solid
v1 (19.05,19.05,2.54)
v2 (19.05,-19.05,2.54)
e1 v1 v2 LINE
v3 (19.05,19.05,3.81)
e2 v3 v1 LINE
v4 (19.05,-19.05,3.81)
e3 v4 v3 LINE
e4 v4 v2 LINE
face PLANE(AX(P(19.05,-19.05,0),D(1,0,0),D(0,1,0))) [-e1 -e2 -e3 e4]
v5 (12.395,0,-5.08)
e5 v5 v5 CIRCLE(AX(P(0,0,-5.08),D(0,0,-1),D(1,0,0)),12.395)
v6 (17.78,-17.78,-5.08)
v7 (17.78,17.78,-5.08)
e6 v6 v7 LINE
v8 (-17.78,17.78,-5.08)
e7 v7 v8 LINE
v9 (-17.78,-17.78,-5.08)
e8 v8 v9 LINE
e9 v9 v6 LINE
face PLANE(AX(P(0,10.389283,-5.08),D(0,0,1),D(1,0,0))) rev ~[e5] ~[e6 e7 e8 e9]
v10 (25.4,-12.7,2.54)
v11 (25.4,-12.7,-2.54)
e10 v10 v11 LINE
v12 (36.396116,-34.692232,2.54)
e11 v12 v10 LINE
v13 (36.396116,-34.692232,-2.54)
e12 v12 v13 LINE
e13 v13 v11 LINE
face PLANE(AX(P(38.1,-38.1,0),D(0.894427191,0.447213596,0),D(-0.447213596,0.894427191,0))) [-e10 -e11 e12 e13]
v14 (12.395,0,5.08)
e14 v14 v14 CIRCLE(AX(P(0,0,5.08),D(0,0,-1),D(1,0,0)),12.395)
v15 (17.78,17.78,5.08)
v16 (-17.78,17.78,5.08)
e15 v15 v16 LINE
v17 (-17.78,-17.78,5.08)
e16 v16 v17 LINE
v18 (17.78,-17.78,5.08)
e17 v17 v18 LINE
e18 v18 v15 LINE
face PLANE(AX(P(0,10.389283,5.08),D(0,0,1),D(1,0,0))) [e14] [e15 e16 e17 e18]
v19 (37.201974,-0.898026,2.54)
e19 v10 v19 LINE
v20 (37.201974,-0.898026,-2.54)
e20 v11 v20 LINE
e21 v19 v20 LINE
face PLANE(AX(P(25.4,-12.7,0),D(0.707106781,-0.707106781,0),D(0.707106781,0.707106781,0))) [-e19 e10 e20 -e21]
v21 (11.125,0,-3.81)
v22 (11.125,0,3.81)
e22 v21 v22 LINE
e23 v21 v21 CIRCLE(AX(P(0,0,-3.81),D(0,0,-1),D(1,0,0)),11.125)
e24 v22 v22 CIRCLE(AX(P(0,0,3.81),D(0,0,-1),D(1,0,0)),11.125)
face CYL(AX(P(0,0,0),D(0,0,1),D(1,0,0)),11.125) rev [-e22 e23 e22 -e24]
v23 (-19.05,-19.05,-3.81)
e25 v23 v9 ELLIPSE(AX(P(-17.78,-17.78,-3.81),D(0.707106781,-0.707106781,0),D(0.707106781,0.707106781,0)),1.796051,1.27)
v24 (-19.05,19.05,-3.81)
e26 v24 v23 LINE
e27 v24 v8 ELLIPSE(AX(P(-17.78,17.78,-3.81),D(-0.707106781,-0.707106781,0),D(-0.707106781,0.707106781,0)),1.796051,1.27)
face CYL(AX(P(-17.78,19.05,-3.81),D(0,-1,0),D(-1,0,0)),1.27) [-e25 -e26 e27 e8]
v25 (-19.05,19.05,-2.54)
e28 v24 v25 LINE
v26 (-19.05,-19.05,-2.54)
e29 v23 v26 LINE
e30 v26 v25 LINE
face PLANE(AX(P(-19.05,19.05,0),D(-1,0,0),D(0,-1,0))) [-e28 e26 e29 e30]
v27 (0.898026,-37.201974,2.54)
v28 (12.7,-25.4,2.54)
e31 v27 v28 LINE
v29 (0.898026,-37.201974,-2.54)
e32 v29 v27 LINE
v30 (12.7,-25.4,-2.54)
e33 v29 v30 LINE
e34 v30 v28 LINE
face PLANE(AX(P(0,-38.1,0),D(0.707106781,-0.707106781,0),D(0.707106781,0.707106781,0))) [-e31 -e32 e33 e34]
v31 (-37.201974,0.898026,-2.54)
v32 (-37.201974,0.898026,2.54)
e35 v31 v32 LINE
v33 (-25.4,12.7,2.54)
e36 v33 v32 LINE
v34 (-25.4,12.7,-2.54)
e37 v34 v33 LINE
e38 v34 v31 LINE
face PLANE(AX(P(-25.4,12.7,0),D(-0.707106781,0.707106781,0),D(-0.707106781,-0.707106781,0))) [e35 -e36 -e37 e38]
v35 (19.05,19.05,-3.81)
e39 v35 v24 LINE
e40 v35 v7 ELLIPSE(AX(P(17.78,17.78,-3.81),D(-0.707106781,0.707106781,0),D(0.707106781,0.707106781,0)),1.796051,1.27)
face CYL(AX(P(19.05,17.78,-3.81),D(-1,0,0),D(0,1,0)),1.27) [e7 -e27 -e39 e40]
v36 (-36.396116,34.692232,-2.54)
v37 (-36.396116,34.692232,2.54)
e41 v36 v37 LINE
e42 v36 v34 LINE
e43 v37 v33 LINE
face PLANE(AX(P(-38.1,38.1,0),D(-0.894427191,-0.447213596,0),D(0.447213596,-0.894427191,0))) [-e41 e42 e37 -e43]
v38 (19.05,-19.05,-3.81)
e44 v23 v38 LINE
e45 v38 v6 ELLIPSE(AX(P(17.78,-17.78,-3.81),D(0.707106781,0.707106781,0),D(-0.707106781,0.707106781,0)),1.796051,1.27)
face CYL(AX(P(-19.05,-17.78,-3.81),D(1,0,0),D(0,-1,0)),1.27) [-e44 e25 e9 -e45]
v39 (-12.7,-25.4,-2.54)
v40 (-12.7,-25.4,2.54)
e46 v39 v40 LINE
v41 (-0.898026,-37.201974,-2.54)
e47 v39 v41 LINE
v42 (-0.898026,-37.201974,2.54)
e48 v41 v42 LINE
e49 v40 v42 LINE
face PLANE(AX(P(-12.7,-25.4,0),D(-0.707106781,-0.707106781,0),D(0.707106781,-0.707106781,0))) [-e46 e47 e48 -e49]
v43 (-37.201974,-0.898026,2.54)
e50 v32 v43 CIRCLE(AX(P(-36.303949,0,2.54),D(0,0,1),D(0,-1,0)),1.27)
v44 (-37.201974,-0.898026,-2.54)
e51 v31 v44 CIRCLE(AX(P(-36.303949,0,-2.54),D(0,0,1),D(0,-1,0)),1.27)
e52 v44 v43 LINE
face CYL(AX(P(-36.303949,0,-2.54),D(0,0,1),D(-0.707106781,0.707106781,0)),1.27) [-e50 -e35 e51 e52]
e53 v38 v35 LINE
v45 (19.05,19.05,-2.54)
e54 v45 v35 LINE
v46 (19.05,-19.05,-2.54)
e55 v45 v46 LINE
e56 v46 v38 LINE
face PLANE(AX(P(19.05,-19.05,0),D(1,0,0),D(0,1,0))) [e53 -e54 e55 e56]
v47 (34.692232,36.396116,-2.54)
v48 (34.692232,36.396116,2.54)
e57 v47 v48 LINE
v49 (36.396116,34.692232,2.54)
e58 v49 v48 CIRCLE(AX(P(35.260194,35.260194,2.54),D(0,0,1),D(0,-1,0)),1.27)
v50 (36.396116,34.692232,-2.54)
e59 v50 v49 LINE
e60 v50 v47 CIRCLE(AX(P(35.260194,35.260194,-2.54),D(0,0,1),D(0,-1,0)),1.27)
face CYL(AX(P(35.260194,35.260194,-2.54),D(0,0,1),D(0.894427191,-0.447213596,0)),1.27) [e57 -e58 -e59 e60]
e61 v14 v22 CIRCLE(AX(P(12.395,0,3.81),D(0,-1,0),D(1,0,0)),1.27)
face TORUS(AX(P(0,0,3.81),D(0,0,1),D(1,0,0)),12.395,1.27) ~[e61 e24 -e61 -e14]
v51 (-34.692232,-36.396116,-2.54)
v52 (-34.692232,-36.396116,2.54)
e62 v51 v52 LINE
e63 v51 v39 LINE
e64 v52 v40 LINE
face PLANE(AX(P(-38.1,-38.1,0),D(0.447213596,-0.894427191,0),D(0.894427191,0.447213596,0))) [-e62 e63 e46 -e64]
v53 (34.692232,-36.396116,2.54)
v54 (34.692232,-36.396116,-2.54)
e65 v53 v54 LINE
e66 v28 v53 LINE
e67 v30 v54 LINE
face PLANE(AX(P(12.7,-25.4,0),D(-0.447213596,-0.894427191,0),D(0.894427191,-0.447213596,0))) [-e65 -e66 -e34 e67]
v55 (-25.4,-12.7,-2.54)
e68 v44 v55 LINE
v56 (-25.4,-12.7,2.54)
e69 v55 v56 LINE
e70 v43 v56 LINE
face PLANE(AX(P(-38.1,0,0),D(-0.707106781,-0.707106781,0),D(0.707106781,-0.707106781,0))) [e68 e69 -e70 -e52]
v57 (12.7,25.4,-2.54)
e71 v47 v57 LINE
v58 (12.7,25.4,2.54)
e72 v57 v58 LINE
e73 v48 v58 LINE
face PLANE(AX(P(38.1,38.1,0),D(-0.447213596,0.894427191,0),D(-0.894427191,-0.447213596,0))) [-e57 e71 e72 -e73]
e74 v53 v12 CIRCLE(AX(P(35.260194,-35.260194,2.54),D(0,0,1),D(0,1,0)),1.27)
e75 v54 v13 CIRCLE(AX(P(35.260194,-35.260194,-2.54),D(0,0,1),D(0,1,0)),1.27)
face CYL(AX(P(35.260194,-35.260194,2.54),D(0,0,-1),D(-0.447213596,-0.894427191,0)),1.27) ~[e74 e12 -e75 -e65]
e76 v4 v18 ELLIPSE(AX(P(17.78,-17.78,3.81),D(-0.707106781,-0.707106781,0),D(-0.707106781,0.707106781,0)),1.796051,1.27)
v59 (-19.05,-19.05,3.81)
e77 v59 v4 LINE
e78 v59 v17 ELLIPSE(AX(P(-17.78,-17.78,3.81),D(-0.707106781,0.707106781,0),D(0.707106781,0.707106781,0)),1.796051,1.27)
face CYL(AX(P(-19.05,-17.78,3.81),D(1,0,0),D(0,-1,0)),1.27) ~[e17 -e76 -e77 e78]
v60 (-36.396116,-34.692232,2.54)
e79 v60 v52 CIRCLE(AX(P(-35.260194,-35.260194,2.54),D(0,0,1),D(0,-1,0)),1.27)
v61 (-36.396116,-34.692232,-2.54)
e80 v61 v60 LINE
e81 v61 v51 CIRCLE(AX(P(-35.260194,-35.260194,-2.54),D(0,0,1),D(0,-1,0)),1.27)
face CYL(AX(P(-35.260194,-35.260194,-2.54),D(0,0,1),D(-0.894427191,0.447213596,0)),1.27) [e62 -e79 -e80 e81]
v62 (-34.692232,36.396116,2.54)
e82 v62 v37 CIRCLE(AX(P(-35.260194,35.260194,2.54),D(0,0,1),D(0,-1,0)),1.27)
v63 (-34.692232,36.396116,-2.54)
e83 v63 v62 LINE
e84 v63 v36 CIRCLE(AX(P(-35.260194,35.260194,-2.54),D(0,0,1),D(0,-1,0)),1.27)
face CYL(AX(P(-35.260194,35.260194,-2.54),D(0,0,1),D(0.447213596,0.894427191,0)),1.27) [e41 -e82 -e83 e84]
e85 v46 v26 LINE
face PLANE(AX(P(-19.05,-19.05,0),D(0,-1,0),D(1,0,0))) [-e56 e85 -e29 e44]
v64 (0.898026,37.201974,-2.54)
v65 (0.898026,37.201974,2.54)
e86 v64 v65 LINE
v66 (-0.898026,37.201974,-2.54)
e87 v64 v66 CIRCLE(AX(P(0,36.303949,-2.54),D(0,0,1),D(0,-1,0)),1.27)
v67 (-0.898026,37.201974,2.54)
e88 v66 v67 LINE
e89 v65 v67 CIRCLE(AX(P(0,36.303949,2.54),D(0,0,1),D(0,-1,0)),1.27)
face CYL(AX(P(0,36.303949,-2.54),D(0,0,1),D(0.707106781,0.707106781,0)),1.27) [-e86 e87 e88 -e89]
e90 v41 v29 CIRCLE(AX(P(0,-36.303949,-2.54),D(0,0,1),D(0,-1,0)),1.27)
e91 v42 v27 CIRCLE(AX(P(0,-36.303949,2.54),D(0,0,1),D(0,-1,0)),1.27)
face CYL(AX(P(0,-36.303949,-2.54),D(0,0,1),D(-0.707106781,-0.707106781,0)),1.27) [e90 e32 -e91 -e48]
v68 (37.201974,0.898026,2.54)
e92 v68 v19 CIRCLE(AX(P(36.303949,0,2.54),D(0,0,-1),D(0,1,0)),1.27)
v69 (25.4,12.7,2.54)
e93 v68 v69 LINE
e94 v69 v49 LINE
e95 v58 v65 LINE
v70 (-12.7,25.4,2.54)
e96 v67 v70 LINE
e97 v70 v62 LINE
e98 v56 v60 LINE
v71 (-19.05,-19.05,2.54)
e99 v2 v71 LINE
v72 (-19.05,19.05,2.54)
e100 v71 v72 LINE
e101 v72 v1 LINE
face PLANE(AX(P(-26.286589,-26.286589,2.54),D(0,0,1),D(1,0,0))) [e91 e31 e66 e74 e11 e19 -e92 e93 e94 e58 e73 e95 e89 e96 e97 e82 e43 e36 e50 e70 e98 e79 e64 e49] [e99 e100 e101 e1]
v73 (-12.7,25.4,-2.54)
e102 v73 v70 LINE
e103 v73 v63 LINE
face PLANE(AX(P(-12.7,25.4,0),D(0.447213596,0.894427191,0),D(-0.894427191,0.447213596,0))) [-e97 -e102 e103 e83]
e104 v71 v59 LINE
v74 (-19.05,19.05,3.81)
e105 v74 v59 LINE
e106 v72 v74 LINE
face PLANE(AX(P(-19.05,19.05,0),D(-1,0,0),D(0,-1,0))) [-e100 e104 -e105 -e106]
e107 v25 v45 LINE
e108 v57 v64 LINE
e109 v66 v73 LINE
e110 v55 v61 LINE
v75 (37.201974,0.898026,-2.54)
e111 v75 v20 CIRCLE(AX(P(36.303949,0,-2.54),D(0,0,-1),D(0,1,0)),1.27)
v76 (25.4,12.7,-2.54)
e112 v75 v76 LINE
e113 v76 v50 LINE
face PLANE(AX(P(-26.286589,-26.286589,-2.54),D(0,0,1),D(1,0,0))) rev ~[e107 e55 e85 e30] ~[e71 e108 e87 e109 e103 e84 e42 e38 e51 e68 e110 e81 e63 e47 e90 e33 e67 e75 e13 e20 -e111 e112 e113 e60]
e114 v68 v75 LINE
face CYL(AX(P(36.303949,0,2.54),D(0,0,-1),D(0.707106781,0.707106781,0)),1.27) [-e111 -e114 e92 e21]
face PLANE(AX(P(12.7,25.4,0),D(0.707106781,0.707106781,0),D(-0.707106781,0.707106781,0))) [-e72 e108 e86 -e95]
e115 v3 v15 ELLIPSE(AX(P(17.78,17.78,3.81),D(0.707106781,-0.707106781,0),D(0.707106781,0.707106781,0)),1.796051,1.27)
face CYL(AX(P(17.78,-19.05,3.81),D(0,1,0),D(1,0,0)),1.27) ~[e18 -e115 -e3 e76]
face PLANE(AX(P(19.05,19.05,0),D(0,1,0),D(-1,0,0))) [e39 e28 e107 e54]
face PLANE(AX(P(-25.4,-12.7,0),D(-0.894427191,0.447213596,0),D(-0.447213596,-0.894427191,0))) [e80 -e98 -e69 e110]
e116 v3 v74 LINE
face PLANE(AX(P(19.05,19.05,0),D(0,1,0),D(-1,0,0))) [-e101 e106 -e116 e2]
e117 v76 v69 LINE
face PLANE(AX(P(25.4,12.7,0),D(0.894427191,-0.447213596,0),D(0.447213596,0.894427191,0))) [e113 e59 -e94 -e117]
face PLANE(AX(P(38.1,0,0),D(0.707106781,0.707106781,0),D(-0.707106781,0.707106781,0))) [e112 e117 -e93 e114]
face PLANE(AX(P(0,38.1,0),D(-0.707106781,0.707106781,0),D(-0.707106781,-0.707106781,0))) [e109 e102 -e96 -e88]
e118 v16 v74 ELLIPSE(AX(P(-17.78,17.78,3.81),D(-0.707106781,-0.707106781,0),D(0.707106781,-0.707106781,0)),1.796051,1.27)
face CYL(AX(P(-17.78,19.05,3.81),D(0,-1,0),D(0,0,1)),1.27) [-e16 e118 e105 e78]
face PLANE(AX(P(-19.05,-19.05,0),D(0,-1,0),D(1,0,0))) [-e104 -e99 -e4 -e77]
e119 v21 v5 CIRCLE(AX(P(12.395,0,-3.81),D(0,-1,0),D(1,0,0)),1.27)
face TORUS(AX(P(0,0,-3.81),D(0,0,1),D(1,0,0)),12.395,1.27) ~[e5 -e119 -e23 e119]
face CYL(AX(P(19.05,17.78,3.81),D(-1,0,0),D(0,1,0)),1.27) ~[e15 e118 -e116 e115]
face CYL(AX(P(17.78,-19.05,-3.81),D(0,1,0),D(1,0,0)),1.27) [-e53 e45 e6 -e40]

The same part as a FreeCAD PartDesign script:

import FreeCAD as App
import Part
import Sketcher

V = App.Vector
Q = App.Units.Quantity


def edges_at(feature, points):
    """Names of the edges that pass closest to the given points."""
    edges = feature.Shape.Edges
    near = lambda p: min(range(len(edges)), key=lambda i: edges[i].distToShape(Part.Vertex(*p))[0])
    return sorted({f"Edge{near(p) + 1}" for p in points})

doc = App.newDocument("Part")
params = doc.addObject("Spreadsheet::Sheet", "Params")
for row, (alias, value) in enumerate([
    ("sketch1_width", "1.5 in"),
    ("pad1_length", "0.4 in"),
    ("fillet_radius", "0.05 in"),
    ("sketch2_width", "1.5 in"),
    ("pad2_length", "0.2 in"),
    ("fillet2_radius", "0.05 in"),
], start=1):
    params.set(f"A{row}", alias)
    params.set(f"B{row}", "=" + value)
    params.setAlias(f"B{row}", alias)

body = doc.addObject("PartDesign::Body", "Body")

# Sketch on XY plane
sketch1 = body.newObject("Sketcher::SketchObject", "Sketch")
sketch1.AttachmentSupport = (doc.getObject("XY_Plane"), [""])
sketch1.MapMode = "FlatFace"
sketch1.addGeometry(Part.LineSegment(V(19, 19, 0), V(-19, 19, 0)), False)
sketch1.addGeometry(Part.LineSegment(V(-19, 19, 0), V(-19, -19, 0)), False)
sketch1.addGeometry(Part.LineSegment(V(-19, -19, 0), V(19, -19, 0)), False)
sketch1.addGeometry(Part.LineSegment(V(19, -19, 0), V(19, 19, 0)), False)
sketch1.addGeometry(Part.Circle(V(0, 0, 0), V(0, 0, 1), 11), False)
sketch1.addConstraint(Sketcher.Constraint("Coincident", 0, 2, 1, 1))
sketch1.addConstraint(Sketcher.Constraint("Coincident", 1, 2, 2, 1))
sketch1.addConstraint(Sketcher.Constraint("Coincident", 2, 2, 3, 1))
sketch1.addConstraint(Sketcher.Constraint("Coincident", 3, 2, 0, 1))
sketch1.addConstraint(Sketcher.Constraint("Horizontal", 0))
sketch1.addConstraint(Sketcher.Constraint("Vertical", 1))
sketch1.addConstraint(Sketcher.Constraint("Horizontal", 2))
sketch1.addConstraint(Sketcher.Constraint("Vertical", 3))
sketch1.addConstraint(Sketcher.Constraint("Coincident", 4, 3, -1, 1))
sketch1.addConstraint(Sketcher.Constraint("Symmetric", 0, 2, 2, 2, -1, 1))
sketch1.addConstraint(Sketcher.Constraint("Equal", 2, 1))
sketch1.addConstraint(Sketcher.Constraint("DistanceX", 0, 2, 0, 1, Q("1.5 in")))
sketch1.addConstraint(Sketcher.Constraint("Diameter", 4, Q("22.25 mm")))
sketch1.setExpression("Constraints[11]", "Params.sketch1_width")
pad1 = body.newObject("PartDesign::Pad", "Pad")
pad1.Profile = sketch1
pad1.setExpression("Length", "Params.pad1_length")
pad1.Midplane = True
doc.recompute()

fillet = body.newObject("PartDesign::Fillet", "Fillet")
fillet.Base = (pad1, edges_at(pad1, [
    (19.05, 0, 5.08),
    (0, -19.05, 5.08),
    (-19.05, 0, 5.08),
    (0, 19.05, 5.08),
    (-11.125, 0, 5.08),
    (-11.125, 0, -5.08),
    (19.05, 0, -5.08),
    (0, -19.05, -5.08),
    (0, 19.05, -5.08),
    (-19.05, 0, -5.08),
]))
fillet.setExpression("Radius", "Params.fillet_radius")

# Sketch on XY plane
sketch2 = body.newObject("Sketcher::SketchObject", "Sketch001")
sketch2.AttachmentSupport = (doc.getObject("XY_Plane"), [""])
sketch2.MapMode = "FlatFace"
sketch2.addGeometry(Part.LineSegment(V(38, 0, 0), V(25, 13, 0)), False)
sketch2.addGeometry(Part.LineSegment(V(25, 13, 0), V(38, 38, 0)), False)
sketch2.addGeometry(Part.LineSegment(V(38, 38, 0), V(13, 25, 0)), False)
sketch2.addGeometry(Part.LineSegment(V(13, 25, 0), V(0, 38, 0)), False)
sketch2.addGeometry(Part.LineSegment(V(0, 38, 0), V(-13, 25, 0)), False)
sketch2.addGeometry(Part.LineSegment(V(-13, 25, 0), V(-38, 38, 0)), False)
sketch2.addGeometry(Part.LineSegment(V(-38, 38, 0), V(-25, 13, 0)), False)
sketch2.addGeometry(Part.LineSegment(V(-25, 13, 0), V(-38, 0, 0)), False)
sketch2.addGeometry(Part.LineSegment(V(-38, 0, 0), V(-25, -13, 0)), False)
sketch2.addGeometry(Part.LineSegment(V(-25, -13, 0), V(-38, -38, 0)), False)
sketch2.addGeometry(Part.LineSegment(V(-38, -38, 0), V(-13, -25, 0)), False)
sketch2.addGeometry(Part.LineSegment(V(-13, -25, 0), V(0, -38, 0)), False)
sketch2.addGeometry(Part.LineSegment(V(0, -38, 0), V(13, -25, 0)), False)
sketch2.addGeometry(Part.LineSegment(V(13, -25, 0), V(38, -38, 0)), False)
sketch2.addGeometry(Part.LineSegment(V(38, -38, 0), V(25, -13, 0)), False)
sketch2.addGeometry(Part.LineSegment(V(25, -13, 0), V(38, 0, 0)), False)
sketch2.addGeometry(Part.LineSegment(V(-19, 19, 0), V(19, 19, 0)), False)
sketch2.addGeometry(Part.LineSegment(V(19, 19, 0), V(19, -19, 0)), False)
sketch2.addGeometry(Part.LineSegment(V(19, -19, 0), V(-19, -19, 0)), False)
sketch2.addGeometry(Part.LineSegment(V(-19, -19, 0), V(-19, 19, 0)), False)
sketch2.addConstraint(Sketcher.Constraint("Coincident", 0, 2, 1, 1))
sketch2.addConstraint(Sketcher.Constraint("Coincident", 1, 2, 2, 1))
sketch2.addConstraint(Sketcher.Constraint("Coincident", 2, 2, 3, 1))
sketch2.addConstraint(Sketcher.Constraint("Coincident", 3, 2, 4, 1))
sketch2.addConstraint(Sketcher.Constraint("Coincident", 4, 2, 5, 1))
sketch2.addConstraint(Sketcher.Constraint("Coincident", 5, 2, 6, 1))
sketch2.addConstraint(Sketcher.Constraint("Coincident", 6, 2, 7, 1))
sketch2.addConstraint(Sketcher.Constraint("Coincident", 7, 2, 8, 1))
sketch2.addConstraint(Sketcher.Constraint("Coincident", 8, 2, 9, 1))
sketch2.addConstraint(Sketcher.Constraint("Coincident", 9, 2, 10, 1))
sketch2.addConstraint(Sketcher.Constraint("Coincident", 10, 2, 11, 1))
sketch2.addConstraint(Sketcher.Constraint("Coincident", 11, 2, 12, 1))
sketch2.addConstraint(Sketcher.Constraint("Coincident", 12, 2, 13, 1))
sketch2.addConstraint(Sketcher.Constraint("Coincident", 13, 2, 14, 1))
sketch2.addConstraint(Sketcher.Constraint("Coincident", 14, 2, 15, 1))
sketch2.addConstraint(Sketcher.Constraint("Coincident", 15, 2, 0, 1))
sketch2.addConstraint(Sketcher.Constraint("Coincident", 16, 2, 17, 1))
sketch2.addConstraint(Sketcher.Constraint("Coincident", 17, 2, 18, 1))
sketch2.addConstraint(Sketcher.Constraint("Coincident", 18, 2, 19, 1))
sketch2.addConstraint(Sketcher.Constraint("Coincident", 19, 2, 16, 1))
sketch2.addConstraint(Sketcher.Constraint("Horizontal", 16))
sketch2.addConstraint(Sketcher.Constraint("Vertical", 17))
sketch2.addConstraint(Sketcher.Constraint("Horizontal", 18))
sketch2.addConstraint(Sketcher.Constraint("Vertical", 19))
sketch2.addConstraint(Sketcher.Constraint("Symmetric", 0, 2, 8, 2, -1, 1))
sketch2.addConstraint(Sketcher.Constraint("Symmetric", 1, 2, 9, 2, -1, 1))
sketch2.addConstraint(Sketcher.Constraint("Symmetric", 2, 2, 10, 2, -1, 1))
sketch2.addConstraint(Sketcher.Constraint("Symmetric", 3, 2, 11, 2, -1, 1))
sketch2.addConstraint(Sketcher.Constraint("Symmetric", 4, 2, 12, 2, -1, 1))
sketch2.addConstraint(Sketcher.Constraint("Symmetric", 5, 2, 13, 2, -1, 1))
sketch2.addConstraint(Sketcher.Constraint("Symmetric", 6, 2, 14, 2, -1, 1))
sketch2.addConstraint(Sketcher.Constraint("Symmetric", 7, 2, 15, 2, -1, 1))
sketch2.addConstraint(Sketcher.Constraint("Symmetric", 16, 2, 18, 2, -1, 1))
sketch2.addConstraint(Sketcher.Constraint("Symmetric", 2, 2, 4, 2, -2))
sketch2.addConstraint(Sketcher.Constraint("Symmetric", 1, 2, 5, 2, -2))
sketch2.addConstraint(Sketcher.Constraint("Symmetric", 0, 2, 6, 2, -2))
sketch2.addConstraint(Sketcher.Constraint("PointOnObject", 3, 2, -2))
sketch2.addConstraint(Sketcher.Constraint("PointOnObject", 7, 2, -1))
sketch2.addConstraint(Sketcher.Constraint("Parallel", 0, 3))
sketch2.addConstraint(Sketcher.Constraint("Perpendicular", 3, 4))
sketch2.addConstraint(Sketcher.Constraint("Perpendicular", 1, 5))
sketch2.addConstraint(Sketcher.Constraint("Horizontal", 1, 2, 3, 2))
sketch2.addConstraint(Sketcher.Constraint("Vertical", 5, 2, 7, 2))
sketch2.addConstraint(Sketcher.Constraint("Equal", 18, 17))
sketch2.addConstraint(Sketcher.Constraint("Equal", 1, 2))
sketch2.addConstraint(Sketcher.Constraint("DistanceX", 16, 1, 16, 2, Q("1.5 in")))
sketch2.addConstraint(Sketcher.Constraint("DistanceX", -1, 1, 0, 2, Q("1 in")))
sketch2.addConstraint(Sketcher.Constraint("DistanceX", 4, 2, 2, 2, Q("1 in")))
sketch2.setExpression("Constraints[45]", "Params.sketch2_width")
pad2 = body.newObject("PartDesign::Pad", "Pad001")
pad2.Profile = sketch2
pad2.setExpression("Length", "Params.pad2_length")
pad2.Midplane = True
doc.recompute()

fillet2 = body.newObject("PartDesign::Fillet", "Fillet001")
fillet2.Base = (pad2, edges_at(pad2, [
    (-38.1, -38.1, 0),
    (-38.1, 0, 0),
    (-38.1, 38.1, 0),
    (0, 38.1, 0),
    (38.1, 38.1, 0),
    (38.1, 0, 0),
    (38.1, -38.1, 0),
    (0, -38.1, 0),
]))
fillet2.setExpression("Radius", "Params.fillet2_radius")

doc.recompute()
